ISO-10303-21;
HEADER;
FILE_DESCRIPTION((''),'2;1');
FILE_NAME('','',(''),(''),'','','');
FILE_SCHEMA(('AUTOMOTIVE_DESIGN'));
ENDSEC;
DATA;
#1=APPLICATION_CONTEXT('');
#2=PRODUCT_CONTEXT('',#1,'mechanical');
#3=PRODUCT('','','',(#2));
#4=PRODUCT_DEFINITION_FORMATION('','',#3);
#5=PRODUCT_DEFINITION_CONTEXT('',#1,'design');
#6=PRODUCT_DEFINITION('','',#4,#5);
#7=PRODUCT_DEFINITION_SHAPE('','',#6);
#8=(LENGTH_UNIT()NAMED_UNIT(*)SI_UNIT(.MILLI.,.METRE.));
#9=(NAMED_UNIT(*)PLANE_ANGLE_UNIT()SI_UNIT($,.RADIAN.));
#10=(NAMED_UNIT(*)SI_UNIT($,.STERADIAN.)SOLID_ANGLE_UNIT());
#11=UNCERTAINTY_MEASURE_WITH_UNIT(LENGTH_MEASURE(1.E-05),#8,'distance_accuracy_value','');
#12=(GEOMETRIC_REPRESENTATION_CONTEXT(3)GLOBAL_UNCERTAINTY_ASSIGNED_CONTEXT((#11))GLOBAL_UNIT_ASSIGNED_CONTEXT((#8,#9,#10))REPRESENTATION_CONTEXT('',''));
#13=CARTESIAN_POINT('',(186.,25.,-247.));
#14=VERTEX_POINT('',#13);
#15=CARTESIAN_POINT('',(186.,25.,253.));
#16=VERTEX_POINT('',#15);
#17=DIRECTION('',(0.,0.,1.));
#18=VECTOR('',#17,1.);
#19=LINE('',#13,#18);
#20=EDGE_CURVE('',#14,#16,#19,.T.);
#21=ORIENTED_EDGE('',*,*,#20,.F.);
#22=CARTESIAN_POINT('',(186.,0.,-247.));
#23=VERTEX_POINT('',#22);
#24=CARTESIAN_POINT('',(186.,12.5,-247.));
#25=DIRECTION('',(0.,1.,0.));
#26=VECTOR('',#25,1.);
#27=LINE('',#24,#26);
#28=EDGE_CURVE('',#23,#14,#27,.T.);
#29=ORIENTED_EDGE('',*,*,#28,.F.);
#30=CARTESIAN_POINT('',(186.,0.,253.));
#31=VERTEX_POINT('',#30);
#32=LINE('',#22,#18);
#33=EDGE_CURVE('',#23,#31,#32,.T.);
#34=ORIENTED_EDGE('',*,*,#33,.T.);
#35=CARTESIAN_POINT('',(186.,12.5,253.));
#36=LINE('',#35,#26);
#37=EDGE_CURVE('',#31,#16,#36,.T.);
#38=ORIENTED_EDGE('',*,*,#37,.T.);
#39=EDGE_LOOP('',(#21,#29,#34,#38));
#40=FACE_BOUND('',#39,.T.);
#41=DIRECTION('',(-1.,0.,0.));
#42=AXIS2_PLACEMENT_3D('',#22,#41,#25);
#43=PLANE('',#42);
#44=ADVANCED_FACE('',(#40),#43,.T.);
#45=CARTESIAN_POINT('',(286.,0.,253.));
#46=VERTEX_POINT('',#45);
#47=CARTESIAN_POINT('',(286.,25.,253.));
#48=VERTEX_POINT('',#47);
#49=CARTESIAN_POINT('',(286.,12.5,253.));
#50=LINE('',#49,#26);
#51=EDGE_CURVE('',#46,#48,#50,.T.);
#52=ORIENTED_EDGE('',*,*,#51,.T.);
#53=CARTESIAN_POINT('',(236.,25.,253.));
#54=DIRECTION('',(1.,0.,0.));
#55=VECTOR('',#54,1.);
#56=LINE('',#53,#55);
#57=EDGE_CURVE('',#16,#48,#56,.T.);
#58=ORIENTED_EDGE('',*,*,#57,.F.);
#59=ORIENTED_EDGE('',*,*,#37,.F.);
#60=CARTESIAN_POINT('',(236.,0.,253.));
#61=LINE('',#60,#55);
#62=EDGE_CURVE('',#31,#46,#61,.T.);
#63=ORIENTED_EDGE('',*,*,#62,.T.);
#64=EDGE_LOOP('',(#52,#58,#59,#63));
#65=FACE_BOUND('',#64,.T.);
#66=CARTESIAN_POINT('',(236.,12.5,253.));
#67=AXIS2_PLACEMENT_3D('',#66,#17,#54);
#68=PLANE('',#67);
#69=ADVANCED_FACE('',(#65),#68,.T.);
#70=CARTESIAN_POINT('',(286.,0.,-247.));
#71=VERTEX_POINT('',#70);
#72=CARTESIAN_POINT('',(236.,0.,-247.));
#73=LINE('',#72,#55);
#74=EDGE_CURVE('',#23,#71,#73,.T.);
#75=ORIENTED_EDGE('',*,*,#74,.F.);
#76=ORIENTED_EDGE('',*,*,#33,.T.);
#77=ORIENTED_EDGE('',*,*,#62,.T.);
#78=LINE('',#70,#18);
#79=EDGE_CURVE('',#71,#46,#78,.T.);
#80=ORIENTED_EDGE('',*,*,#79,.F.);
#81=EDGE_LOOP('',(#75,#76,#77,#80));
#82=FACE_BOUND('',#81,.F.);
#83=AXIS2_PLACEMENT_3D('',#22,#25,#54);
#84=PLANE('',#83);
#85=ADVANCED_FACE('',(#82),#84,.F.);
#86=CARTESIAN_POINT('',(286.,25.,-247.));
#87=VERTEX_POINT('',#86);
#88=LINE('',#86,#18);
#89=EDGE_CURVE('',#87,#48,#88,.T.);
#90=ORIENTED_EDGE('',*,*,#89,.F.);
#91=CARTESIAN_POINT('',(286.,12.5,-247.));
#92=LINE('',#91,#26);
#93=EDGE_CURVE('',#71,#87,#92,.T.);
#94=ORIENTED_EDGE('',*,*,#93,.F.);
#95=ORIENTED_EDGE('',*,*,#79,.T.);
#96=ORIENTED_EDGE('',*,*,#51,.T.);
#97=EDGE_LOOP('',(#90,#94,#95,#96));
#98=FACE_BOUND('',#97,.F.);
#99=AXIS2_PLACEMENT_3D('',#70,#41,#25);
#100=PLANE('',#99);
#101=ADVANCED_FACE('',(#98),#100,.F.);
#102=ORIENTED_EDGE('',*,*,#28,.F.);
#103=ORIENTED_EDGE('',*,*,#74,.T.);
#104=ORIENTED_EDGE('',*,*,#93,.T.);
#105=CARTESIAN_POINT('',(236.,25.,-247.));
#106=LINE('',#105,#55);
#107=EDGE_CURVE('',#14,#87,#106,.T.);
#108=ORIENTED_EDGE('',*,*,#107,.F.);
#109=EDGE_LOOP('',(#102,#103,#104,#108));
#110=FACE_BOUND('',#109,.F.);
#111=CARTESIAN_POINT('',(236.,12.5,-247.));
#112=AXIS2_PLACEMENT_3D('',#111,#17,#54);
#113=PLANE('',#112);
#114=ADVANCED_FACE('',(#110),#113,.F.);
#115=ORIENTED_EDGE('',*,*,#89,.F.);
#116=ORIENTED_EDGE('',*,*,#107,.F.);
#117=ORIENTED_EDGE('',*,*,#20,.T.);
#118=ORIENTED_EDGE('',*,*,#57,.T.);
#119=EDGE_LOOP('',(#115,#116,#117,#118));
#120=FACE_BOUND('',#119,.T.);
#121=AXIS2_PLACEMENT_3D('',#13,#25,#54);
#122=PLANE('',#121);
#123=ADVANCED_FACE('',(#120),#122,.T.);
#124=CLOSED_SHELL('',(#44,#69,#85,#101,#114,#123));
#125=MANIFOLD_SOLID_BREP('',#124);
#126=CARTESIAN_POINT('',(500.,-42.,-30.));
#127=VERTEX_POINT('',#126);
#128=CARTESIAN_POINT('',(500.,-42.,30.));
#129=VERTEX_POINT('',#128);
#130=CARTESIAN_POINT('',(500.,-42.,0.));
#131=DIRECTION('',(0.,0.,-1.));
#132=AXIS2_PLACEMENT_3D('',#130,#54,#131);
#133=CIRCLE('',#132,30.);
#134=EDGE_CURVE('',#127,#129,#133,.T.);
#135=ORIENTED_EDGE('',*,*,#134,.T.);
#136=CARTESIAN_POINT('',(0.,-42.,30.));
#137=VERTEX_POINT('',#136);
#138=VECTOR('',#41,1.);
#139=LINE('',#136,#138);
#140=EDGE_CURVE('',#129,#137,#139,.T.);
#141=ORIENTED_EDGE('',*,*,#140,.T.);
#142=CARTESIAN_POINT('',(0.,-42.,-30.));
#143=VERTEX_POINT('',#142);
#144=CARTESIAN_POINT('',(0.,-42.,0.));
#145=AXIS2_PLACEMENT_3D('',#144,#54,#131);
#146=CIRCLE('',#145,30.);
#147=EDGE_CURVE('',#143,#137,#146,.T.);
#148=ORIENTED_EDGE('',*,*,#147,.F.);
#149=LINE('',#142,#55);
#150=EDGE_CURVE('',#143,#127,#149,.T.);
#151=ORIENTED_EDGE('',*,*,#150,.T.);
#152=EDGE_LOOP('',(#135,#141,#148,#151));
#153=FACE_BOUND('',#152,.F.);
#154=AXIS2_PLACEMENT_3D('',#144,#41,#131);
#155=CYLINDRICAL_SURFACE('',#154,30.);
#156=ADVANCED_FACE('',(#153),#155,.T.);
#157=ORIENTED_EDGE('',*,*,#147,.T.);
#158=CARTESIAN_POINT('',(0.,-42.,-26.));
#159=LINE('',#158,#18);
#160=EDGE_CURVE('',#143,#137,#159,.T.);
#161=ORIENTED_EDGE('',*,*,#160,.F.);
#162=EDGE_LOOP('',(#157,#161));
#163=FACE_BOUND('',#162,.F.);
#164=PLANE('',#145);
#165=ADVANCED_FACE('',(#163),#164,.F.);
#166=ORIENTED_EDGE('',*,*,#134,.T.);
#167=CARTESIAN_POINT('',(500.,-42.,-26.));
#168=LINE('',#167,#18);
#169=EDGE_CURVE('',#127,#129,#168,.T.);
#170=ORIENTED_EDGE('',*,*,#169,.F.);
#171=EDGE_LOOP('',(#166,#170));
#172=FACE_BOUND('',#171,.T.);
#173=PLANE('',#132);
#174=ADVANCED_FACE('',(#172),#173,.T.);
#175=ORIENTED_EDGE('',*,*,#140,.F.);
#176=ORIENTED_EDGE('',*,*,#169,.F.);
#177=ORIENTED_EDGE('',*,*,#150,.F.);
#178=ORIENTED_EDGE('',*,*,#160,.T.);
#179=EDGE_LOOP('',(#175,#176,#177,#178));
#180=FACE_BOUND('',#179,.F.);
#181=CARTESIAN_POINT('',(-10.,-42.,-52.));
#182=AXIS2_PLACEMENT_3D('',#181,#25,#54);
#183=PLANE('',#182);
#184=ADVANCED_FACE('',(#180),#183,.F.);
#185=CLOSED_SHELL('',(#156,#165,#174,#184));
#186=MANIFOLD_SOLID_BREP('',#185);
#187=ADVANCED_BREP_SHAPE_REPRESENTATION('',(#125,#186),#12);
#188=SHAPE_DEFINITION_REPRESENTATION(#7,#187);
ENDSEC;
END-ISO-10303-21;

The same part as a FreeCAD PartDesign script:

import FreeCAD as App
import Part
import Sketcher

V = App.Vector
Q = App.Units.Quantity

doc = App.newDocument("Part")
body = doc.addObject("PartDesign::Body", "Body")

# Sketch on XY plane
sketch1 = body.newObject("Sketcher::SketchObject", "Sketch")
sketch1.AttachmentSupport = (doc.getObject("XY_Plane"), [""])
sketch1.MapMode = "FlatFace"
sketch1.AttachmentOffset = App.Placement(V(0, 0, -52), App.Rotation())
sketch1.addGeometry([
    Part.LineSegment(V(-10, -42, 0), V(-10, -142, 0)),
    Part.LineSegment(V(-10, -142, 0), V(590, -142, 0)),
    Part.LineSegment(V(590, -142, 0), V(590, -42, 0)),
    Part.LineSegment(V(590, -42, 0), V(-10, -42, 0)),
], False)
sketch1.addConstraint([
    Sketcher.Constraint("Coincident", 0, 2, 1, 1),
    Sketcher.Constraint("Coincident", 1, 2, 2, 1),
    Sketcher.Constraint("Coincident", 2, 2, 3, 1),
    Sketcher.Constraint("Coincident", 3, 2, 0, 1),
    Sketcher.Constraint("Vertical", 0),
    Sketcher.Constraint("Horizontal", 1),
    Sketcher.Constraint("Vertical", 2),
    Sketcher.Constraint("Horizontal", 3),
    Sketcher.Constraint("DistanceX", 1, 1, 1, 2, Q("600 mm")),
    Sketcher.Constraint("DistanceY", 0, 2, 0, 1, Q("100 mm")),
    Sketcher.Constraint("DistanceX", 0, 2, -1, 1, Q("10 mm")),
    Sketcher.Constraint("DistanceY", 0, 2, -1, 1, Q("142 mm")),
])
pad1 = body.newObject("PartDesign::Pad", "Pad")
pad1.Profile = sketch1
pad1.Length = 100
body2 = doc.addObject("PartDesign::Body", "Body001")

# Sketch on YZ plane
sketch2 = body2.newObject("Sketcher::SketchObject", "Sketch001")
sketch2.AttachmentSupport = (doc.getObject("YZ_Plane001"), [""])
sketch2.MapMode = "FlatFace"
sketch2.addGeometry(Part.Circle(V(-42, 0, 0), V(0, 0, 1), 30), False)
sketch2.addConstraint([
    Sketcher.Constraint("PointOnObject", 0, 3, -1),
    Sketcher.Constraint("Diameter", 0, Q("60 mm")),
    Sketcher.Constraint("DistanceX", 0, 3, -1, 1, Q("42 mm")),
])
pad2 = body2.newObject("PartDesign::Pad", "Pad001")
pad2.Profile = sketch2
pad2.Length = 500
doc.recompute()

boolean = body2.newObject("PartDesign::Boolean", "Boolean")
boolean.Type = "Cut"
boolean.addObjects([body])
body3 = doc.addObject("PartDesign::Body", "Body002")
body3.AllowCompound = True

# Sketch on XY plane
sketch3 = body3.newObject("Sketcher::SketchObject", "Sketch002")
sketch3.AttachmentSupport = (doc.getObject("XY_Plane002"), [""])
sketch3.MapMode = "FlatFace"
sketch3.AttachmentOffset = App.Placement(V(0, 0, -247), App.Rotation())
sketch3.addGeometry([
    Part.LineSegment(V(186, 25, 0), V(186, 0, 0)),
    Part.LineSegment(V(186, 0, 0), V(286, 0, 0)),
    Part.LineSegment(V(286, 0, 0), V(286, 25, 0)),
    Part.LineSegment(V(286, 25, 0), V(186, 25, 0)),
], False)
sketch3.addConstraint([
    Sketcher.Constraint("Coincident", 0, 2, 1, 1),
    Sketcher.Constraint("Coincident", 1, 2, 2, 1),
    Sketcher.Constraint("Coincident", 2, 2, 3, 1),
    Sketcher.Constraint("Coincident", 3, 2, 0, 1),
    Sketcher.Constraint("Vertical", 0),
    Sketcher.Constraint("Horizontal", 1),
    Sketcher.Constraint("Vertical", 2),
    Sketcher.Constraint("Horizontal", 3),
    Sketcher.Constraint("PointOnObject", 0, 2, -1),
    Sketcher.Constraint("DistanceX", 1, 1, 1, 2, Q("100 mm")),
    Sketcher.Constraint("DistanceY", 0, 2, 0, 1, Q("25 mm")),
    Sketcher.Constraint("DistanceX", -1, 1, 0, 2, Q("186 mm")),
])
pad3 = body3.newObject("PartDesign::Pad", "Pad002")
pad3.Profile = sketch3
pad3.Length = 500
doc.recompute()

boolean2 = body3.newObject("PartDesign::Boolean", "Boolean001")
boolean2.Type = "Fuse"
boolean2.addObjects([body2])

doc.recompute()
